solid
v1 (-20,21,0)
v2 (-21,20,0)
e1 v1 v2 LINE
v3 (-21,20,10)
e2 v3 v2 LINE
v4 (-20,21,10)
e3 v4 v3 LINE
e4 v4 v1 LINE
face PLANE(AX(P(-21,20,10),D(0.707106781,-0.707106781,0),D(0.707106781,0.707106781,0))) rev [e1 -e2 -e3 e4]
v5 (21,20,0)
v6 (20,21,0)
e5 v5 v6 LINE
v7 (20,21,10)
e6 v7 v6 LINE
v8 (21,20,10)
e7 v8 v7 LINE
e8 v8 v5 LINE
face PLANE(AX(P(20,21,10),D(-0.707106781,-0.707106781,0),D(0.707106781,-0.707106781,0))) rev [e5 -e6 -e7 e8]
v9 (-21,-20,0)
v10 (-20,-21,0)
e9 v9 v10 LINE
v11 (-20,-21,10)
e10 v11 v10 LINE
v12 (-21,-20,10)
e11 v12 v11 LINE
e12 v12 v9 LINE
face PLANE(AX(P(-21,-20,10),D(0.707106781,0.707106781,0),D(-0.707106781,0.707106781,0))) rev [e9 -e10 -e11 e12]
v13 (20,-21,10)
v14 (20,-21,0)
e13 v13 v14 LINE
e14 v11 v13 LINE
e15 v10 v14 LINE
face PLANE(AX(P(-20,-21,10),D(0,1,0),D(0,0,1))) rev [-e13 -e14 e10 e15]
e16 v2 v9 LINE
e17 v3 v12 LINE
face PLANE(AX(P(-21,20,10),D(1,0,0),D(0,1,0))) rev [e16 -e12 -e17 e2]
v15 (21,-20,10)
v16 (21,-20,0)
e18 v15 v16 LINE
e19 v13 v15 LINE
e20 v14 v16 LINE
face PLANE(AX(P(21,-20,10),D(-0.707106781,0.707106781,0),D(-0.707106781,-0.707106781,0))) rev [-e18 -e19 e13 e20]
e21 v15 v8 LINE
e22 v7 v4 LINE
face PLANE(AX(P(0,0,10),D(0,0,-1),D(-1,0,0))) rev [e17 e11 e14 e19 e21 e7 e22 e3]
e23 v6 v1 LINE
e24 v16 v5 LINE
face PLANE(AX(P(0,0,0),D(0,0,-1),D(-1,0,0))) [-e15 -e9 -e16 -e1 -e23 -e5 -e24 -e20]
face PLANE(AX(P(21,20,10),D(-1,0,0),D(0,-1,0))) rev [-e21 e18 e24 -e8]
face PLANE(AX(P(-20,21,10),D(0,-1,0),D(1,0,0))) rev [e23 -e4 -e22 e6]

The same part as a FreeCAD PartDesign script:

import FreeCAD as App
import Part
import Sketcher

V = App.Vector
Q = App.Units.Quantity


def add_polygon(sketch, points):
    """Adds a closed chain of lines whose ends are joined by coincident constraints."""
    first, n = sketch.GeometryCount, len(points)
    for a, b in zip(points, points[1:] + points[:1]):
        sketch.addGeometry(Part.LineSegment(App.Vector(*a, 0), App.Vector(*b, 0)), False)
    for i in range(n):
        sketch.addConstraint(Sketcher.Constraint("Coincident", first + i, 2, first + (i + 1) % n, 1))

doc = App.newDocument("Part")
body = doc.addObject("PartDesign::Body", "Body")

# Sketch on XY plane
sketch1 = body.newObject("Sketcher::SketchObject", "Sketch")
sketch1.AttachmentSupport = (doc.getObject("XY_Plane"), [""])
sketch1.MapMode = "FlatFace"
add_polygon(sketch1, [(-20, 21), (-21, 20), (-21, -20), (-20, -21), (20, -21), (21, -20), (21, 20), (20, 21)])  # lines 0-7
sketch1.addConstraint(Sketcher.Constraint("Vertical", 1))
sketch1.addConstraint(Sketcher.Constraint("Horizontal", 3))
sketch1.addConstraint(Sketcher.Constraint("Vertical", 5))
sketch1.addConstraint(Sketcher.Constraint("Horizontal", 7))
sketch1.addConstraint(Sketcher.Constraint("Symmetric", 0, 2, 4, 2, -1, 1))
sketch1.addConstraint(Sketcher.Constraint("Symmetric", 2, 2, 6, 2, -1, 1))
sketch1.addConstraint(Sketcher.Constraint("Perpendicular", 0, 2))
sketch1.addConstraint(Sketcher.Constraint("Perpendicular", 2, 4))
sketch1.addConstraint(Sketcher.Constraint("Perpendicular", 4, 6))
sketch1.addConstraint(Sketcher.Constraint("Horizontal", 1, 2, 4, 2))
sketch1.addConstraint(Sketcher.Constraint("Vertical", 3, 2, 6, 2))
sketch1.addConstraint(Sketcher.Constraint("Equal", 7, 1))
sketch1.addConstraint(Sketcher.Constraint("DistanceX", 3, 1, 3, 2, Q("40 mm")))
sketch1.addConstraint(Sketcher.Constraint("DistanceX", 0, 2, -1, 1, Q("21 mm")))
pad1 = body.newObject("PartDesign::Pad", "Pad")
pad1.Profile = sketch1
pad1.Length = 10

doc.recompute()
